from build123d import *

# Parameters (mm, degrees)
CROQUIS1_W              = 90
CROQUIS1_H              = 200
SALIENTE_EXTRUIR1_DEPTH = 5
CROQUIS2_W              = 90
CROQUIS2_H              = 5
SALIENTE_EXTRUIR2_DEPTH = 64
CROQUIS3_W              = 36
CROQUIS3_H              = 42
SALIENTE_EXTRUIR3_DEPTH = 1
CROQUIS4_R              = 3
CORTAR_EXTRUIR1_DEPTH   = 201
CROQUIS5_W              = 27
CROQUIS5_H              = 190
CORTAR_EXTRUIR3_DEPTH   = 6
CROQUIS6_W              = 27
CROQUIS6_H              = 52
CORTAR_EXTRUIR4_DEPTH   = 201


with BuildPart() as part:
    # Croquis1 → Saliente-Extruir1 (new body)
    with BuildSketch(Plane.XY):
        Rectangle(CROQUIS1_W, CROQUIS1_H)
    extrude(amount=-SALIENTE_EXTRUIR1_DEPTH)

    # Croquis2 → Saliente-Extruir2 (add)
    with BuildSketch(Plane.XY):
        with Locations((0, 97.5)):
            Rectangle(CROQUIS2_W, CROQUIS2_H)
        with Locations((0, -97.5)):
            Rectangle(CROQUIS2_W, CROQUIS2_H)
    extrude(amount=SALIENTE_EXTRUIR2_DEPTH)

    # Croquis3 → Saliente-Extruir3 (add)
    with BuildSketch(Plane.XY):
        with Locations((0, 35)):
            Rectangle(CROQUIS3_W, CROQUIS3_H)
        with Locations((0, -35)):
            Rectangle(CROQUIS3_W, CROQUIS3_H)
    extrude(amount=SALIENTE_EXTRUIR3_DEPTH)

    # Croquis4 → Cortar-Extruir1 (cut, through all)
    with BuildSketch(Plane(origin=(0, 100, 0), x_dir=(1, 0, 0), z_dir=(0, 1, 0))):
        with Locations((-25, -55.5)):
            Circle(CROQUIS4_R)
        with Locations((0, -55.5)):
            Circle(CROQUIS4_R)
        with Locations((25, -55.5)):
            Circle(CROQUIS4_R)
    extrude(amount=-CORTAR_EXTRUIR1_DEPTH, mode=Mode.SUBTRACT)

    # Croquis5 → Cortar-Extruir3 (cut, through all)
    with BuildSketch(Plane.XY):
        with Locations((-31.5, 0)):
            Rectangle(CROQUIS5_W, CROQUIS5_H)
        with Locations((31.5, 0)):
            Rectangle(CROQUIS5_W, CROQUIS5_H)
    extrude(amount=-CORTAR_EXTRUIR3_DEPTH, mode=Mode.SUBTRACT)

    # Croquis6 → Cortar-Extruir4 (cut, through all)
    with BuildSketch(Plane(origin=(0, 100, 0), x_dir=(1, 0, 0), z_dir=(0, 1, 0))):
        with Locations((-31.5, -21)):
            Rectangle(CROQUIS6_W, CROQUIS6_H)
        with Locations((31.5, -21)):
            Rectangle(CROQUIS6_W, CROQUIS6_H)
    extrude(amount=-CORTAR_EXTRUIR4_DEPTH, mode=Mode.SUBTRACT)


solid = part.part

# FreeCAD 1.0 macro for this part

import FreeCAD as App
import Part
import Sketcher

V = App.Vector


def add_polygon(sketch, points):
    """Adds a closed chain of lines whose ends are joined by coincident constraints."""
    first, n = sketch.GeometryCount, len(points)
    for a, b in zip(points, points[1:] + points[:1]):
        sketch.addGeometry(Part.LineSegment(App.Vector(*a, 0), App.Vector(*b, 0)), False)
    for i in range(n):
        sketch.addConstraint(Sketcher.Constraint("Coincident", first + i, 2, first + (i + 1) % n, 1))

doc = App.newDocument("Part")
body = doc.addObject("PartDesign::Body", "Body")

sketch1 = body.newObject("Sketcher::SketchObject", "Sketch")
sketch1.AttachmentSupport = (doc.getObject("XY_Plane"), [""])
sketch1.MapMode = "FlatFace"
add_polygon(sketch1, [(-45, 100), (-45, -100), (45, -100), (45, 100)])
sketch1.addConstraint(Sketcher.Constraint("Vertical", 0))
sketch1.addConstraint(Sketcher.Constraint("Horizontal", 1))
sketch1.addConstraint(Sketcher.Constraint("Vertical", 2))
sketch1.addConstraint(Sketcher.Constraint("Horizontal", 3))
sketch1.addConstraint(Sketcher.Constraint("Symmetric", 0, 2, 2, 2, -1, 1))
sketch1.addConstraint(Sketcher.Constraint("DistanceX", 1, 1, 1, 2, 90.0))
sketch1.addConstraint(Sketcher.Constraint("DistanceY", 0, 2, 0, 1, 200.0))
pad1 = body.newObject("PartDesign::Pad", "Pad")
pad1.Profile = sketch1
pad1.Length = 5
pad1.Reversed = True

sketch2 = body.newObject("Sketcher::SketchObject", "Sketch001")
sketch2.AttachmentSupport = (doc.getObject("XY_Plane"), [""])
sketch2.MapMode = "FlatFace"
add_polygon(sketch2, [(-45, 100), (-45, 95), (45, 95), (45, 100)])
add_polygon(sketch2, [(-45, -95), (-45, -100), (45, -100), (45, -95)])
sketch2.addConstraint(Sketcher.Constraint("Vertical", 0))
sketch2.addConstraint(Sketcher.Constraint("Horizontal", 1))
sketch2.addConstraint(Sketcher.Constraint("Vertical", 2))
sketch2.addConstraint(Sketcher.Constraint("Horizontal", 3))
sketch2.addConstraint(Sketcher.Constraint("Vertical", 4))
sketch2.addConstraint(Sketcher.Constraint("Horizontal", 5))
sketch2.addConstraint(Sketcher.Constraint("Vertical", 6))
sketch2.addConstraint(Sketcher.Constraint("Horizontal", 7))
sketch2.addConstraint(Sketcher.Constraint("Symmetric", 2, 2, 4, 2, -1, 1))
sketch2.addConstraint(Sketcher.Constraint("Symmetric", 0, 2, 6, 2, -1, 1))
sketch2.addConstraint(Sketcher.Constraint("Vertical", 3, 2, 4, 2))
sketch2.addConstraint(Sketcher.Constraint("DistanceX", 1, 1, 1, 2, 90.0))
sketch2.addConstraint(Sketcher.Constraint("DistanceY", 0, 2, 0, 1, 5.0))
sketch2.addConstraint(Sketcher.Constraint("DistanceY", -1, 1, 0, 2, 95.0))
pad2 = body.newObject("PartDesign::Pad", "Pad001")
pad2.Profile = sketch2
pad2.Length = 64

sketch3 = body.newObject("Sketcher::SketchObject", "Sketch002")
sketch3.AttachmentSupport = (doc.getObject("XY_Plane"), [""])
sketch3.MapMode = "FlatFace"
add_polygon(sketch3, [(-18, 56), (-18, 14), (18, 14), (18, 56)])
add_polygon(sketch3, [(-18, -14), (-18, -56), (18, -56), (18, -14)])
sketch3.addConstraint(Sketcher.Constraint("Vertical", 0))
sketch3.addConstraint(Sketcher.Constraint("Horizontal", 1))
sketch3.addConstraint(Sketcher.Constraint("Vertical", 2))
sketch3.addConstraint(Sketcher.Constraint("Horizontal", 3))
sketch3.addConstraint(Sketcher.Constraint("Vertical", 4))
sketch3.addConstraint(Sketcher.Constraint("Horizontal", 5))
sketch3.addConstraint(Sketcher.Constraint("Vertical", 6))
sketch3.addConstraint(Sketcher.Constraint("Horizontal", 7))
sketch3.addConstraint(Sketcher.Constraint("Symmetric", 2, 2, 4, 2, -1, 1))
sketch3.addConstraint(Sketcher.Constraint("Symmetric", 0, 2, 6, 2, -1, 1))
sketch3.addConstraint(Sketcher.Constraint("Vertical", 3, 2, 4, 2))
sketch3.addConstraint(Sketcher.Constraint("DistanceX", 1, 1, 1, 2, 36.0))
sketch3.addConstraint(Sketcher.Constraint("DistanceY", 0, 2, 0, 1, 42.0))
sketch3.addConstraint(Sketcher.Constraint("DistanceY", -1, 1, 0, 2, 14.0))
pad3 = body.newObject("PartDesign::Pad", "Pad002")
pad3.Profile = sketch3
pad3.Length = 1

sketch4 = body.newObject("Sketcher::SketchObject", "Sketch003")
sketch4.AttachmentSupport = (doc.getObject("XZ_Plane"), [""])
sketch4.MapMode = "FlatFace"
sketch4.AttachmentOffset = App.Placement(V(0, 0, -100), App.Rotation())
sketch4.addGeometry(Part.Circle(V(-25, 55.5, 0), V(0, 0, 1), 3), False)
sketch4.addGeometry(Part.Circle(V(0, 55.5, 0), V(0, 0, 1), 3), False)
sketch4.addGeometry(Part.Circle(V(25, 55.5, 0), V(0, 0, 1), 3), False)
sketch4.addConstraint(Sketcher.Constraint("Equal", 0, 1))
sketch4.addConstraint(Sketcher.Constraint("Equal", 1, 2))
sketch4.addConstraint(Sketcher.Constraint("Symmetric", 0, 3, 2, 3, -2))
sketch4.addConstraint(Sketcher.Constraint("PointOnObject", 1, 3, -2))
sketch4.addConstraint(Sketcher.Constraint("Horizontal", 0, 3, 1, 3))
sketch4.addConstraint(Sketcher.Constraint("Diameter", 0, 6.0))
sketch4.addConstraint(Sketcher.Constraint("DistanceX", 0, 3, -1, 1, 25.0))
sketch4.addConstraint(Sketcher.Constraint("DistanceY", -1, 1, 0, 3, 55.5))
pocket1 = body.newObject("PartDesign::Pocket", "Pocket")
pocket1.Profile = sketch4
pocket1.Type = "ThroughAll"
pocket1.Reversed = True

sketch5 = body.newObject("Sketcher::SketchObject", "Sketch004")
sketch5.AttachmentSupport = (doc.getObject("XY_Plane"), [""])
sketch5.MapMode = "FlatFace"
add_polygon(sketch5, [(-45, 95), (-45, -95), (-18, -95), (-18, 95)])
add_polygon(sketch5, [(18, 95), (18, -95), (45, -95), (45, 95)])
sketch5.addConstraint(Sketcher.Constraint("Vertical", 0))
sketch5.addConstraint(Sketcher.Constraint("Horizontal", 1))
sketch5.addConstraint(Sketcher.Constraint("Vertical", 2))
sketch5.addConstraint(Sketcher.Constraint("Horizontal", 3))
sketch5.addConstraint(Sketcher.Constraint("Vertical", 4))
sketch5.addConstraint(Sketcher.Constraint("Horizontal", 5))
sketch5.addConstraint(Sketcher.Constraint("Vertical", 6))
sketch5.addConstraint(Sketcher.Constraint("Horizontal", 7))
sketch5.addConstraint(Sketcher.Constraint("Symmetric", 2, 2, 4, 2, -1, 1))
sketch5.addConstraint(Sketcher.Constraint("Symmetric", 0, 2, 6, 2, -1, 1))
sketch5.addConstraint(Sketcher.Constraint("Horizontal", 1, 2, 4, 2))
sketch5.addConstraint(Sketcher.Constraint("DistanceX", 1, 1, 1, 2, 27.0))
sketch5.addConstraint(Sketcher.Constraint("DistanceY", 0, 2, 0, 1, 190.0))
sketch5.addConstraint(Sketcher.Constraint("DistanceX", 0, 2, -1, 1, 45.0))
pocket2 = body.newObject("PartDesign::Pocket", "Pocket001")
pocket2.Profile = sketch5
pocket2.Type = "ThroughAll"

sketch6 = body.newObject("Sketcher::SketchObject", "Sketch005")
sketch6.AttachmentSupport = (doc.getObject("XZ_Plane"), [""])
sketch6.MapMode = "FlatFace"
sketch6.AttachmentOffset = App.Placement(V(0, 0, -100), App.Rotation())
add_polygon(sketch6, [(-45, -5), (-45, 47), (-18, 47), (-18, -5)])
add_polygon(sketch6, [(18, -5), (18, 47), (45, 47), (45, -5)])
sketch6.addConstraint(Sketcher.Constraint("Vertical", 0))
sketch6.addConstraint(Sketcher.Constraint("Horizontal", 1))
sketch6.addConstraint(Sketcher.Constraint("Vertical", 2))
sketch6.addConstraint(Sketcher.Constraint("Horizontal", 3))
sketch6.addConstraint(Sketcher.Constraint("Vertical", 4))
sketch6.addConstraint(Sketcher.Constraint("Horizontal", 5))
sketch6.addConstraint(Sketcher.Constraint("Vertical", 6))
sketch6.addConstraint(Sketcher.Constraint("Horizontal", 7))
sketch6.addConstraint(Sketcher.Constraint("Symmetric", 1, 2, 4, 2, -2))
sketch6.addConstraint(Sketcher.Constraint("Symmetric", 3, 2, 6, 2, -2))
sketch6.addConstraint(Sketcher.Constraint("DistanceX", 1, 1, 1, 2, 27.0))
sketch6.addConstraint(Sketcher.Constraint("DistanceY", 0, 1, 0, 2, 52.0))
sketch6.addConstraint(Sketcher.Constraint("DistanceX", 0, 2, -1, 1, 45.0))
sketch6.addConstraint(Sketcher.Constraint("DistanceY", -1, 1, 0, 2, 47.0))
pocket3 = body.newObject("PartDesign::Pocket", "Pocket002")
pocket3.Profile = sketch6
pocket3.Type = "ThroughAll"
pocket3.Reversed = True

doc.recompute()
